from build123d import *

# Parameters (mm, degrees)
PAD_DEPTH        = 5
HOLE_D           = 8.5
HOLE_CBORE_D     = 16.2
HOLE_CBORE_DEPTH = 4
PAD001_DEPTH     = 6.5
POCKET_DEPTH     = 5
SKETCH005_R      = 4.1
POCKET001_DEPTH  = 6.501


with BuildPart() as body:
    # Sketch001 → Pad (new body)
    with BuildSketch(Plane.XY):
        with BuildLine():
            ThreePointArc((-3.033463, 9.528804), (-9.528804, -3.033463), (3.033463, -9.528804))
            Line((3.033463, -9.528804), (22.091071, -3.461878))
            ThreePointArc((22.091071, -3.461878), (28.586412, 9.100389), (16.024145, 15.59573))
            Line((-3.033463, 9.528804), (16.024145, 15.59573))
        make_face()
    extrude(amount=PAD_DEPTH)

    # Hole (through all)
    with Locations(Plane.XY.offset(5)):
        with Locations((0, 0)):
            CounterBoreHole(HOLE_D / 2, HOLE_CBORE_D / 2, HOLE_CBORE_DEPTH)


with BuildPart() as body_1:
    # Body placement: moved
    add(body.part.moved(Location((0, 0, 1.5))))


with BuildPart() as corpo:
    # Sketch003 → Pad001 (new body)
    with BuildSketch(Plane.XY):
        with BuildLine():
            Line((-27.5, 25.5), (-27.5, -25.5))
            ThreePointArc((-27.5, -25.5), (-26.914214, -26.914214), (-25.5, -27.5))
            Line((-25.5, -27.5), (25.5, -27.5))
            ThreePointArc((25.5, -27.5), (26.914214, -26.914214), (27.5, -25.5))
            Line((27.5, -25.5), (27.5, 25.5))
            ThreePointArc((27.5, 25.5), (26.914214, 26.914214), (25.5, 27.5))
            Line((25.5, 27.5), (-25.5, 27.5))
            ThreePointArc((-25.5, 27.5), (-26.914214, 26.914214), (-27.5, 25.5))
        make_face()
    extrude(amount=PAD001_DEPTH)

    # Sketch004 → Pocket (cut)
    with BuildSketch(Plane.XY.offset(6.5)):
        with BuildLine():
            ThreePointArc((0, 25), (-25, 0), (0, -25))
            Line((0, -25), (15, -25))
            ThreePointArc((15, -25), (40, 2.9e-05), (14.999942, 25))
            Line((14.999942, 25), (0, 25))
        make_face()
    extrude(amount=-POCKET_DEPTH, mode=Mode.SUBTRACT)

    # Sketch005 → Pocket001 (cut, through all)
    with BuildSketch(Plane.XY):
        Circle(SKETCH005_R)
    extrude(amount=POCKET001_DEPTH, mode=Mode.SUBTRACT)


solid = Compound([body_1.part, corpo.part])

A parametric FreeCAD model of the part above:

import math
import FreeCAD as App
import Part
import Sketcher

V = App.Vector

doc = App.newDocument("Part")
body = doc.addObject("PartDesign::Body", "Body")

sketch1 = body.newObject("Sketcher::SketchObject", "Sketch")
sketch1.AttachmentSupport = (doc.getObject("XY_Plane"), [""])
sketch1.MapMode = "FlatFace"
sketch1.addGeometry([
    Part.ArcOfCircle(Part.Circle(V(0, 0, 0), V(0, 0, 1), 10), math.radians(108), math.radians(288)),
    Part.LineSegment(V(3, -10, 0), V(22, -3, 0)),
    Part.ArcOfCircle(Part.Circle(V(19, 6, 0), V(0, 0, 1), 10), math.radians(-72), math.radians(108)),
    Part.LineSegment(V(16, 16, 0), V(-3, 10, 0)),
], False)
sketch1.addConstraint([
    Sketcher.Constraint("Tangent", 0, 2, 1, 1),
    Sketcher.Constraint("Tangent", 1, 2, 2, 1),
    Sketcher.Constraint("Tangent", 2, 2, 3, 1),
    Sketcher.Constraint("Tangent", 3, 2, 0, 1),
    Sketcher.Constraint("Coincident", 0, 3, -1, 1),
    Sketcher.Constraint("Equal", 0, 2),
    Sketcher.Constraint("Radius", 0, 10.0),
    Sketcher.Constraint("Distance", 1, 20.0),
    Sketcher.Constraint("DistanceX", -1, 1, 1, 2, 22.091071),
])
pad1 = body.newObject("PartDesign::Pad", "Pad")
pad1.Profile = sketch1
pad1.Length = 5

sketch2 = body.newObject("Sketcher::SketchObject", "Sketch001")
sketch2.AttachmentSupport = (doc.getObject("XY_Plane"), [""])
sketch2.MapMode = "FlatFace"
sketch2.AttachmentOffset = App.Placement(V(0, 0, 5), App.Rotation())
sketch2.addGeometry(Part.Circle(V(0, 0, 0), V(0, 0, 1), 4.2), False)
sketch2.addConstraint([
    Sketcher.Constraint("Coincident", 0, 3, -1, 1),
    Sketcher.Constraint("Diameter", 0, 8.5),
])
doc.recompute()
hole = body.newObject("PartDesign::Hole", "Hole")
hole.Profile = sketch2
hole.ThreadType = "None"
hole.Diameter = 8.5
hole.DepthType = "ThroughAll"
hole.HoleCutType = "Counterbore"
hole.HoleCutDiameter = 16.2
hole.HoleCutDepth = 4
body2 = doc.addObject("PartDesign::Body", "Body001")
doc.recompute()

body.Placement = App.Placement(V(0, 0, 1.5), App.Rotation(V(0, 0, 1), 0))
boolean = body2.newObject("PartDesign::Boolean", "Boolean")
boolean.Type = "Fuse"
boolean.addObjects([body])
body3 = doc.addObject("PartDesign::Body", "Body002")

sketch3 = body3.newObject("Sketcher::SketchObject", "Sketch002")
sketch3.AttachmentSupport = (doc.getObject("XY_Plane002"), [""])
sketch3.MapMode = "FlatFace"
sketch3.addGeometry([
    Part.LineSegment(V(-27.5, 25.5, 0), V(-27.5, -25.5, 0)),
    Part.ArcOfCircle(Part.Circle(V(-25.5, -25.5, 0), V(0, 0, 1), 2), math.radians(180), math.radians(270)),
    Part.LineSegment(V(-25.5, -27.5, 0), V(25.5, -27.5, 0)),
    Part.ArcOfCircle(Part.Circle(V(25.5, -25.5, 0), V(0, 0, 1), 2), math.radians(-90), math.radians(0)),
    Part.LineSegment(V(27.5, -25.5, 0), V(27.5, 25.5, 0)),
    Part.ArcOfCircle(Part.Circle(V(25.5, 25.5, 0), V(0, 0, 1), 2), math.radians(0), math.radians(90)),
    Part.LineSegment(V(25.5, 27.5, 0), V(-25.5, 27.5, 0)),
    Part.ArcOfCircle(Part.Circle(V(-25.5, 25.5, 0), V(0, 0, 1), 2), math.radians(90), math.radians(180)),
], False)
sketch3.addConstraint([
    Sketcher.Constraint("Tangent", 0, 2, 1, 1),
    Sketcher.Constraint("Tangent", 1, 2, 2, 1),
    Sketcher.Constraint("Tangent", 2, 2, 3, 1),
    Sketcher.Constraint("Tangent", 3, 2, 4, 1),
    Sketcher.Constraint("Tangent", 4, 2, 5, 1),
    Sketcher.Constraint("Tangent", 5, 2, 6, 1),
    Sketcher.Constraint("Tangent", 6, 2, 7, 1),
    Sketcher.Constraint("Tangent", 7, 2, 0, 1),
    Sketcher.Constraint("Vertical", 0),
    Sketcher.Constraint("Horizontal", 2),
    Sketcher.Constraint("Vertical", 4),
    Sketcher.Constraint("Horizontal", 6),
    Sketcher.Constraint("Equal", 1, 3),
    Sketcher.Constraint("Equal", 3, 5),
    Sketcher.Constraint("Equal", 5, 7),
    Sketcher.Constraint("Symmetric", 1, 3, 5, 3, -1, 1),
    Sketcher.Constraint("Equal", 6, 0),
    Sketcher.Constraint("Radius", 1, 1.999999),
    Sketcher.Constraint("DistanceX", 2, 1, 2, 2, 51.0),
])
pad2 = body3.newObject("PartDesign::Pad", "Pad001")
pad2.Profile = sketch3
pad2.Length = 6.5

sketch4 = body3.newObject("Sketcher::SketchObject", "Sketch003")
sketch4.AttachmentSupport = (doc.getObject("XY_Plane002"), [""])
sketch4.MapMode = "FlatFace"
sketch4.AttachmentOffset = App.Placement(V(0, 0, 6.5), App.Rotation())
sketch4.addGeometry([
    Part.ArcOfCircle(Part.Circle(V(0, 0, 0), V(0, 0, 1), 25), math.radians(90), math.radians(270)),
    Part.LineSegment(V(0, -25, 0), V(15, -25, 0)),
    Part.ArcOfCircle(Part.Circle(V(15, 0, 0), V(0, 0, 1), 25), math.radians(-90), math.radians(90)),
    Part.LineSegment(V(15, 25, 0), V(0, 25, 0)),
], False)
sketch4.addConstraint([
    Sketcher.Constraint("Tangent", 0, 2, 1, 1),
    Sketcher.Constraint("Tangent", 1, 2, 2, 1),
    Sketcher.Constraint("Coincident", 2, 2, 3, 1),
    Sketcher.Constraint("Tangent", 3, 2, 0, 1),
    Sketcher.Constraint("Horizontal", 1),
    Sketcher.Constraint("Horizontal", 3),
    Sketcher.Constraint("Coincident", 0, 3, -1, 1),
    Sketcher.Constraint("Radius", 0, 25.0),
    Sketcher.Constraint("DistanceX", 1, 1, 1, 2, 15.0),
    Sketcher.Constraint("DistanceX", 3, 2, 3, 1, 14.999942),
])
pocket1 = body3.newObject("PartDesign::Pocket", "Pocket")
pocket1.Profile = sketch4
pocket1.Length = 5

sketch5 = body3.newObject("Sketcher::SketchObject", "Sketch004")
sketch5.AttachmentSupport = (doc.getObject("XY_Plane002"), [""])
sketch5.MapMode = "FlatFace"
sketch5.addGeometry(Part.Circle(V(0, 0, 0), V(0, 0, 1), 4.1), False)
sketch5.addConstraint([
    Sketcher.Constraint("Coincident", 0, 3, -1, 1),
    Sketcher.Constraint("Diameter", 0, 8.2),
])
pocket2 = body3.newObject("PartDesign::Pocket", "Pocket001")
pocket2.Profile = sketch5
pocket2.Type = "ThroughAll"
pocket2.Reversed = True

doc.recompute()
